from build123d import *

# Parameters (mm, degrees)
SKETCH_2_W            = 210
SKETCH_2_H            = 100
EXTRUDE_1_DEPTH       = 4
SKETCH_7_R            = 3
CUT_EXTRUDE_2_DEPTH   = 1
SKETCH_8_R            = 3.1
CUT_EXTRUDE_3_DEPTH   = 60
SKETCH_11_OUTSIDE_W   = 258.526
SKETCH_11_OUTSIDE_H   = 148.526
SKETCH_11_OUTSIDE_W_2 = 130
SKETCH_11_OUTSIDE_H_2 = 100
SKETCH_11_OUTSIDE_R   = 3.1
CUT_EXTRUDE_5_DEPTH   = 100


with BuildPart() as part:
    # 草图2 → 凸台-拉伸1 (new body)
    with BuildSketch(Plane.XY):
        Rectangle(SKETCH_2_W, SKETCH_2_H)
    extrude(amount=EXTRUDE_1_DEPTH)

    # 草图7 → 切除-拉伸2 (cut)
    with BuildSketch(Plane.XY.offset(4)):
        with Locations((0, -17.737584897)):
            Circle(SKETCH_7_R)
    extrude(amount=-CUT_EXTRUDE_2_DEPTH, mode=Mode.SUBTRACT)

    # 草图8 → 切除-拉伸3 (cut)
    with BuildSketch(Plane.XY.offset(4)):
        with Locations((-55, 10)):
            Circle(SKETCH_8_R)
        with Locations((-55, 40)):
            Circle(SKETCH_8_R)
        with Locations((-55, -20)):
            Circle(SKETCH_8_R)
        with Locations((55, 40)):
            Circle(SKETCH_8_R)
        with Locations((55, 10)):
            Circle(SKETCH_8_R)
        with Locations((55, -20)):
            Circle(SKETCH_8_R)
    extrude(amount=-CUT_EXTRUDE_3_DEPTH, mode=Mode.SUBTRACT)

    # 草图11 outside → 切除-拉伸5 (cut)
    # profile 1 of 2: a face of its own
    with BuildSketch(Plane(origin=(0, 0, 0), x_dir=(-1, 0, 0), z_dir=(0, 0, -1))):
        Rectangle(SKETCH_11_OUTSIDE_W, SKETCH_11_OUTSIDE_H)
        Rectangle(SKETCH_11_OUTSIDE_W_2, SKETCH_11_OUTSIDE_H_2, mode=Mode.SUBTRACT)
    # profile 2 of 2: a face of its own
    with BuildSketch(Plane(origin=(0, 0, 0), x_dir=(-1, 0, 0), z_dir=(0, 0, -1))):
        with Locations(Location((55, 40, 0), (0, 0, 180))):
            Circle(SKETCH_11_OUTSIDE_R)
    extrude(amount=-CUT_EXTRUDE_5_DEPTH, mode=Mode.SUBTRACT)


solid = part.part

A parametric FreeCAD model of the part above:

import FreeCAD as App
import Part
import Sketcher

doc = App.newDocument("Part")
body = doc.addObject("PartDesign::Body", "Body")

# Sketch on XY plane
sketch1 = doc.addObject("Sketcher::SketchObject", "Sketch")
body.addObject(sketch1)
sketch1.AttachmentSupport = (doc.XY_Plane, [""])
sketch1.MapMode = "FlatFace"
sketch1.addGeometry([
    Part.LineSegment(App.Vector(-105, 50, 0), App.Vector(-105, -50, 0)),
    Part.LineSegment(App.Vector(-105, -50, 0), App.Vector(105, -50, 0)),
    Part.LineSegment(App.Vector(105, -50, 0), App.Vector(105, 50, 0)),
    Part.LineSegment(App.Vector(105, 50, 0), App.Vector(-105, 50, 0)),
], False)
sketch1.addConstraint([
    Sketcher.Constraint("Coincident", 0, 2, 1, 1),
    Sketcher.Constraint("Coincident", 1, 2, 2, 1),
    Sketcher.Constraint("Coincident", 2, 2, 3, 1),
    Sketcher.Constraint("Coincident", 3, 2, 0, 1),
    Sketcher.Constraint("Vertical", 0),
    Sketcher.Constraint("Horizontal", 1),
    Sketcher.Constraint("Vertical", 2),
    Sketcher.Constraint("Horizontal", 3),
    Sketcher.Constraint("Symmetric", 0, 2, 2, 2, -1, 1),
    Sketcher.Constraint("DistanceX", 1, 1, 1, 2, 210.0),
    Sketcher.Constraint("DistanceY", 0, 2, 0, 1, 100.0),
])
pad1 = doc.addObject("PartDesign::Pad", "Pad")
body.addObject(pad1)
pad1.Profile = sketch1
pad1.Length = 4

# Sketch on XY plane
sketch2 = doc.addObject("Sketcher::SketchObject", "Sketch001")
body.addObject(sketch2)
sketch2.AttachmentSupport = (doc.XY_Plane, [""])
sketch2.MapMode = "FlatFace"
sketch2.AttachmentOffset = App.Placement(App.Vector(0, 0, 4), App.Rotation())
sketch2.addGeometry(Part.Circle(App.Vector(0, -17.737585, 0), App.Vector(0, 0, 1), 3), False)
sketch2.addConstraint([
    Sketcher.Constraint("PointOnObject", 0, 3, -2),
    Sketcher.Constraint("Diameter", 0, 6.0),
    Sketcher.Constraint("DistanceY", 0, 3, -1, 1, 17.737585),
])
pocket1 = doc.addObject("PartDesign::Pocket", "Pocket")
body.addObject(pocket1)
pocket1.Profile = sketch2
pocket1.Length = 1

# Sketch on XY plane
sketch3 = doc.addObject("Sketcher::SketchObject", "Sketch002")
body.addObject(sketch3)
sketch3.AttachmentSupport = (doc.XY_Plane, [""])
sketch3.MapMode = "FlatFace"
sketch3.AttachmentOffset = App.Placement(App.Vector(0, 0, 4), App.Rotation())
sketch3.addGeometry([
    Part.Circle(App.Vector(-55, 10, 0), App.Vector(0, 0, 1), 3.1),  # 0
    Part.Circle(App.Vector(-55, 40, 0), App.Vector(0, 0, 1), 3.1),  # 1
    Part.Circle(App.Vector(-55, -20, 0), App.Vector(0, 0, 1), 3.1),  # 2
    Part.Circle(App.Vector(55, 40, 0), App.Vector(0, 0, 1), 3.1),  # 3
    Part.Circle(App.Vector(55, 10, 0), App.Vector(0, 0, 1), 3.1),  # 4
    Part.Circle(App.Vector(55, -20, 0), App.Vector(0, 0, 1), 3.1),  # 5
], False)
sketch3.addConstraint([
    Sketcher.Constraint("Equal", 0, 1),
    Sketcher.Constraint("Equal", 1, 2),
    Sketcher.Constraint("Equal", 2, 3),
    Sketcher.Constraint("Equal", 3, 4),
    Sketcher.Constraint("Equal", 4, 5),
    Sketcher.Constraint("Symmetric", 1, 3, 3, 3, -2),
    Sketcher.Constraint("Symmetric", 0, 3, 4, 3, -2),
    Sketcher.Constraint("Symmetric", 2, 3, 5, 3, -2),
    Sketcher.Constraint("Vertical", 0, 3, 1, 3),
    Sketcher.Constraint("Vertical", 1, 3, 2, 3),
    Sketcher.Constraint("Diameter", 0, 6.2),
    Sketcher.Constraint("DistanceX", 0, 3, -1, 1, 55.0),
    Sketcher.Constraint("DistanceY", -1, 1, 0, 3, 10.0),
    Sketcher.Constraint("DistanceY", -1, 1, 1, 3, 40.0),
    Sketcher.Constraint("DistanceY", 2, 3, -1, 1, 20.0),
])
pocket2 = doc.addObject("PartDesign::Pocket", "Pocket001")
body.addObject(pocket2)
pocket2.Profile = sketch3
pocket2.Length = 60

# Sketch on XY plane
sketch4 = doc.addObject("Sketcher::SketchObject", "Sketch003")
body.addObject(sketch4)
sketch4.AttachmentSupport = (doc.XY_Plane, [""])
sketch4.MapMode = "FlatFace"
sketch4.addGeometry([
    Part.LineSegment(App.Vector(129.263, 74.263, 0), App.Vector(129.263, -74.263, 0)),  # 0
    Part.LineSegment(App.Vector(129.263, -74.263, 0), App.Vector(-129.263, -74.263, 0)),  # 1
    Part.LineSegment(App.Vector(-129.263, -74.263, 0), App.Vector(-129.263, 74.263, 0)),  # 2
    Part.LineSegment(App.Vector(-129.263, 74.263, 0), App.Vector(129.263, 74.263, 0)),  # 3
    Part.LineSegment(App.Vector(-65, -50, 0), App.Vector(65, -50, 0)),  # 4
    Part.LineSegment(App.Vector(65, -50, 0), App.Vector(65, 50, 0)),  # 5
    Part.LineSegment(App.Vector(65, 50, 0), App.Vector(-65, 50, 0)),  # 6
    Part.LineSegment(App.Vector(-65, 50, 0), App.Vector(-65, -50, 0)),  # 7
    Part.Circle(App.Vector(-55, 40, 0), App.Vector(0, 0, 1), 3.1),  # 8
], False)
sketch4.addConstraint([
    Sketcher.Constraint("Coincident", 0, 2, 1, 1),
    Sketcher.Constraint("Coincident", 1, 2, 2, 1),
    Sketcher.Constraint("Coincident", 2, 2, 3, 1),
    Sketcher.Constraint("Coincident", 3, 2, 0, 1),
    Sketcher.Constraint("Coincident", 4, 2, 5, 1),
    Sketcher.Constraint("Coincident", 5, 2, 6, 1),
    Sketcher.Constraint("Coincident", 6, 2, 7, 1),
    Sketcher.Constraint("Coincident", 7, 2, 4, 1),
    Sketcher.Constraint("Vertical", 0),
    Sketcher.Constraint("Horizontal", 1),
    Sketcher.Constraint("Vertical", 2),
    Sketcher.Constraint("Horizontal", 3),
    Sketcher.Constraint("Horizontal", 4),
    Sketcher.Constraint("Vertical", 5),
    Sketcher.Constraint("Horizontal", 6),
    Sketcher.Constraint("Vertical", 7),
    Sketcher.Constraint("Symmetric", 0, 2, 2, 2, -1, 1),
    Sketcher.Constraint("Symmetric", 4, 2, 6, 2, -1, 1),
    Sketcher.Constraint("Diameter", 8, 6.2),
    Sketcher.Constraint("DistanceX", 4, 1, 4, 2, 130.0),
    Sketcher.Constraint("DistanceY", 5, 1, 5, 2, 100.0),
    Sketcher.Constraint("DistanceX", 8, 3, -1, 1, 55.0),
    Sketcher.Constraint("DistanceY", -1, 1, 8, 3, 40.0),
    Sketcher.Constraint("DistanceX", 1, 2, 1, 1, 258.526),
    Sketcher.Constraint("DistanceY", 0, 2, 0, 1, 148.526),
])
pocket3 = doc.addObject("PartDesign::Pocket", "Pocket002")
body.addObject(pocket3)
pocket3.Profile = sketch4
pocket3.Length = 100
pocket3.Reversed = True

doc.recompute()
